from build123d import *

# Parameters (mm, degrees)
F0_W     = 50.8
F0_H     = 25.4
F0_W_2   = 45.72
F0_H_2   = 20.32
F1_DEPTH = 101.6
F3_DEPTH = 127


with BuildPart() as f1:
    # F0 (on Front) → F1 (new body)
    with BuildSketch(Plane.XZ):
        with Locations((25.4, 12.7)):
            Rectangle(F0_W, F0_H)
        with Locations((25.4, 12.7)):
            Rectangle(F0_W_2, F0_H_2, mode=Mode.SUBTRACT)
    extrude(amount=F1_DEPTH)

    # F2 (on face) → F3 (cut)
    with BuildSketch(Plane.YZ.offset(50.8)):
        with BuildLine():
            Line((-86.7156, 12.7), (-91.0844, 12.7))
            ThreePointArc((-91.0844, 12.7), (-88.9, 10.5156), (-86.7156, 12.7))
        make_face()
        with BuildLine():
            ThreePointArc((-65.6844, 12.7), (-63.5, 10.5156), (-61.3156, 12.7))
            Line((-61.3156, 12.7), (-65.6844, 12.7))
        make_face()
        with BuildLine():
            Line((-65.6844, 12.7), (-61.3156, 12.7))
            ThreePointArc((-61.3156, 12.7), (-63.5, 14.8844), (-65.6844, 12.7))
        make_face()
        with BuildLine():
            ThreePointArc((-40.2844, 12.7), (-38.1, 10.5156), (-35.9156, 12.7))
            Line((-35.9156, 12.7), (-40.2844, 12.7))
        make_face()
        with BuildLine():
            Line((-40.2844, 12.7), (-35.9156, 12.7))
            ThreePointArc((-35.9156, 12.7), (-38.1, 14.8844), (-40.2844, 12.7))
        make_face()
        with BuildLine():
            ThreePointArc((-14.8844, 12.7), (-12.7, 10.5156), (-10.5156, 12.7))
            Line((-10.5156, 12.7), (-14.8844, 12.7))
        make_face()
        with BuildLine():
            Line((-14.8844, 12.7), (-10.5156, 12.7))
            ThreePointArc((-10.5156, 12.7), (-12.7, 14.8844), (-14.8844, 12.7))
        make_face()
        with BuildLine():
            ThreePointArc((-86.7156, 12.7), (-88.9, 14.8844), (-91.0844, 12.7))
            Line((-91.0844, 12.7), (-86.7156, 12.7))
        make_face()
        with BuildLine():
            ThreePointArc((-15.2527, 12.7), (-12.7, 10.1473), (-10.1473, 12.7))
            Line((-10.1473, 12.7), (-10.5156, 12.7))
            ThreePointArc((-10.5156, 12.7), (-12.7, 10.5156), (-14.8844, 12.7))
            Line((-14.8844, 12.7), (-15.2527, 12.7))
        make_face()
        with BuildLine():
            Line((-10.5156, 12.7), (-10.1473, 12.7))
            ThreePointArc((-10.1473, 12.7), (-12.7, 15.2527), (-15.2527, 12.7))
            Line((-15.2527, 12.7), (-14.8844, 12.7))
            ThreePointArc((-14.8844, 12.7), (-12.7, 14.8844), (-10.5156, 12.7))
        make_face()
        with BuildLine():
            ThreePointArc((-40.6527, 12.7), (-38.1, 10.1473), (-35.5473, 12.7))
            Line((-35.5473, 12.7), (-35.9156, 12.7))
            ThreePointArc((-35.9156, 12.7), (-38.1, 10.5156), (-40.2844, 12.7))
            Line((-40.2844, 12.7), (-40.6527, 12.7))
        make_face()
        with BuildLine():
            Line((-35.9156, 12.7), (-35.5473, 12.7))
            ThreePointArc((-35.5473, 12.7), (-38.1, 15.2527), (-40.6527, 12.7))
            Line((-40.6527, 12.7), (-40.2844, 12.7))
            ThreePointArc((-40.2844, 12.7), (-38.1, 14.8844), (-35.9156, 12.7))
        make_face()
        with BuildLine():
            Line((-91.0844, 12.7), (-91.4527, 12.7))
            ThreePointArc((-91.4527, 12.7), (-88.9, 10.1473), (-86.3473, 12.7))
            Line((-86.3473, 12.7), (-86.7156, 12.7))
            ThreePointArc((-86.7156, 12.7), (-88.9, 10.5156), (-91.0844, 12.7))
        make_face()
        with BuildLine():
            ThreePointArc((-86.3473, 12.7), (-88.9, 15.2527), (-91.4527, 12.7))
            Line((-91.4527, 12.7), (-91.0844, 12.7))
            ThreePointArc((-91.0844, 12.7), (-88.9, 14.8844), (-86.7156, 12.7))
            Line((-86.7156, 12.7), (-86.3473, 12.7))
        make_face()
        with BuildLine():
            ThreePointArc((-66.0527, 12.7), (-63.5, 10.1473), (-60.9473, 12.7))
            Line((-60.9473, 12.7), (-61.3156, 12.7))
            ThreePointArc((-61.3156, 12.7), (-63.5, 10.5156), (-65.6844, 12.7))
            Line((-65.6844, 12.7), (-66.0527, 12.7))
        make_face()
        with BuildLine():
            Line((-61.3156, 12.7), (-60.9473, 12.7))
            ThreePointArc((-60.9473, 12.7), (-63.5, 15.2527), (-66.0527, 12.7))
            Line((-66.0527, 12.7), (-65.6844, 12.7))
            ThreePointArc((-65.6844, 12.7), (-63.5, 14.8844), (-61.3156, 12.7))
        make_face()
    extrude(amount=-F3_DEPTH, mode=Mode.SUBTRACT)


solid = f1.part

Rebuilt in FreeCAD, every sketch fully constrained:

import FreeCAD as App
import Part
import Sketcher

V = App.Vector
Q = App.Units.Quantity

doc = App.newDocument("Part")
body = doc.addObject("PartDesign::Body", "Body")

sketch1 = doc.addObject("Sketcher::SketchObject", "Sketch")
body.addObject(sketch1)
sketch1.AttachmentSupport = (doc.XZ_Plane, [""])
sketch1.MapMode = "FlatFace"
sketch1.addGeometry([
    Part.LineSegment(V(0, 25.4, 0), V(0, 0, 0)),
    Part.LineSegment(V(0, 0, 0), V(50.8, 0, 0)),
    Part.LineSegment(V(50.8, 0, 0), V(50.8, 25.4, 0)),
    Part.LineSegment(V(50.8, 25.4, 0), V(0, 25.4, 0)),
    Part.LineSegment(V(48.26, 2.54, 0), V(2.54, 2.54, 0)),
    Part.LineSegment(V(2.54, 2.54, 0), V(2.54, 22.86, 0)),
    Part.LineSegment(V(2.54, 22.86, 0), V(48.26, 22.86, 0)),
    Part.LineSegment(V(48.26, 22.86, 0), V(48.26, 2.54, 0)),
], False)
sketch1.addConstraint([
    Sketcher.Constraint("Coincident", 0, 2, 1, 1),
    Sketcher.Constraint("Coincident", 1, 2, 2, 1),
    Sketcher.Constraint("Coincident", 2, 2, 3, 1),
    Sketcher.Constraint("Coincident", 3, 2, 0, 1),
    Sketcher.Constraint("Coincident", 4, 2, 5, 1),
    Sketcher.Constraint("Coincident", 5, 2, 6, 1),
    Sketcher.Constraint("Coincident", 6, 2, 7, 1),
    Sketcher.Constraint("Coincident", 7, 2, 4, 1),
    Sketcher.Constraint("Vertical", 0),
    Sketcher.Constraint("Horizontal", 1),
    Sketcher.Constraint("Vertical", 2),
    Sketcher.Constraint("Horizontal", 3),
    Sketcher.Constraint("Horizontal", 4),
    Sketcher.Constraint("Vertical", 5),
    Sketcher.Constraint("Horizontal", 6),
    Sketcher.Constraint("Vertical", 7),
    Sketcher.Constraint("Coincident", 0, 2, -1, 1),
    Sketcher.Constraint("DistanceX", 1, 1, 1, 2, Q("2 in")),
    Sketcher.Constraint("DistanceY", 0, 2, 0, 1, Q("1 in")),
    Sketcher.Constraint("DistanceX", 4, 2, 4, 1, Q("1.8 in")),
    Sketcher.Constraint("DistanceY", 5, 1, 5, 2, Q("0.8 in")),
    Sketcher.Constraint("DistanceX", -1, 1, 4, 2, Q("0.1 in")),
    Sketcher.Constraint("DistanceY", -1, 1, 4, 2, Q("0.1 in")),
])
pad1 = doc.addObject("PartDesign::Pad", "Pad")
body.addObject(pad1)
pad1.Profile = sketch1
pad1.Length = Q("4 in")

sketch2 = doc.addObject("Sketcher::SketchObject", "Sketch001")
body.addObject(sketch2)
sketch2.AttachmentSupport = (doc.YZ_Plane, [""])
sketch2.MapMode = "FlatFace"
sketch2.AttachmentOffset = App.Placement(V(0, 0, 2 * 25.4), App.Rotation())
sketch2.addGeometry([
    Part.Circle(V(-88.9, 12.7, 0), V(0, 0, 1), 2.5527),
    Part.Circle(V(-63.5, 12.7, 0), V(0, 0, 1), 2.5527),
    Part.Circle(V(-38.1, 12.7, 0), V(0, 0, 1), 2.5527),
    Part.Circle(V(-12.7, 12.7, 0), V(0, 0, 1), 2.5527),
], False)
sketch2.addConstraint([
    Sketcher.Constraint("Equal", 0, 1),
    Sketcher.Constraint("Equal", 1, 2),
    Sketcher.Constraint("Equal", 2, 3),
    Sketcher.Constraint("Horizontal", 0, 3, 1, 3),
    Sketcher.Constraint("Horizontal", 1, 3, 2, 3),
    Sketcher.Constraint("Horizontal", 2, 3, 3, 3),
    Sketcher.Constraint("Diameter", 0, Q("0.201 in")),
    Sketcher.Constraint("DistanceX", 0, 3, 1, 3, Q("1 in")),
    Sketcher.Constraint("DistanceX", 1, 3, 2, 3, Q("1 in")),
    Sketcher.Constraint("DistanceX", 2, 3, 3, 3, Q("1 in")),
    Sketcher.Constraint("DistanceX", 0, 3, -1, 1, Q("3.5 in")),
    Sketcher.Constraint("DistanceY", -1, 1, 0, 3, Q("0.5 in")),
])
pocket1 = doc.addObject("PartDesign::Pocket", "Pocket")
body.addObject(pocket1)
pocket1.Profile = sketch2
pocket1.Length = Q("5 in")

doc.recompute()
